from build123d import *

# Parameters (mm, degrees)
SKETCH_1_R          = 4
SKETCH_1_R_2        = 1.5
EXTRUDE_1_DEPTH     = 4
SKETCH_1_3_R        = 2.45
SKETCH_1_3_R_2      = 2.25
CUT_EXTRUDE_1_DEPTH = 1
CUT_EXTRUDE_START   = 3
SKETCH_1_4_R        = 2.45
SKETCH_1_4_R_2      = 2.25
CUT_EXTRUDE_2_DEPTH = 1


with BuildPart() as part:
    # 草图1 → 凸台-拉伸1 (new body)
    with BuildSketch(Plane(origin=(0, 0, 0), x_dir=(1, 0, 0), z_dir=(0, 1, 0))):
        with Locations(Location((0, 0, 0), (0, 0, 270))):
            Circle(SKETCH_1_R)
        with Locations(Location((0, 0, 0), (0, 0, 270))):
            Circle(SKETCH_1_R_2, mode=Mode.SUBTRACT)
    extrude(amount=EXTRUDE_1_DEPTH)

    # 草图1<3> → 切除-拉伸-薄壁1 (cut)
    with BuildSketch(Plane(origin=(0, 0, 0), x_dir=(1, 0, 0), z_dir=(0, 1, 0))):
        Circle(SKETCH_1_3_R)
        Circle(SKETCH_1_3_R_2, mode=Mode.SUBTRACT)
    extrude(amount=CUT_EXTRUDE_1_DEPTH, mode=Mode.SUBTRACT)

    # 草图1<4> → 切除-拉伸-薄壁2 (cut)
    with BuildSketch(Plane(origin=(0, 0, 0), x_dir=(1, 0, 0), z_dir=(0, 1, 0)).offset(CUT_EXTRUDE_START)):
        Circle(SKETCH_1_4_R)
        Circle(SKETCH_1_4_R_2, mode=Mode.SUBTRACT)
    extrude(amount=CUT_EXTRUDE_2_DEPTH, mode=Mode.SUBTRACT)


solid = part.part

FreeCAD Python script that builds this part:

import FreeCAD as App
import Part
import Sketcher
from FreeCAD import Vector
Q = App.Units.Quantity

doc = App.newDocument("Part")
body = doc.addObject("PartDesign::Body", "Body")

sketch1 = body.newObject("Sketcher::SketchObject", "Sketch")
sketch1.AttachmentSupport = (doc.getObject("XZ_Plane"), [""])
sketch1.MapMode = "FlatFace"
sketch1.addGeometry([
    Part.Circle(Vector(0, 0, 0), Vector(0, 0, 1), 4),
    Part.Circle(Vector(0, 0, 0), Vector(0, 0, 1), 1.5),
], False)
sketch1.addConstraint([
    Sketcher.Constraint("Coincident", 0, 3, -1, 1),
    Sketcher.Constraint("Coincident", 1, 3, -1, 1),
    Sketcher.Constraint("Diameter", 0, Q("8 mm")),
    Sketcher.Constraint("Diameter", 1, Q("3 mm")),
])
pad1 = body.newObject("PartDesign::Pad", "Pad")
pad1.Profile = sketch1
pad1.Length = 4
pad1.Reversed = True

sketch2 = body.newObject("Sketcher::SketchObject", "Sketch001")
sketch2.AttachmentSupport = (doc.getObject("XZ_Plane"), [""])
sketch2.MapMode = "FlatFace"
sketch2.addGeometry([
    Part.Circle(Vector(0, 0, 0), Vector(0, 0, 1), 2.5),
    Part.Circle(Vector(0, 0, 0), Vector(0, 0, 1), 2.2),
], False)
sketch2.addConstraint([
    Sketcher.Constraint("Coincident", 0, 3, -1, 1),
    Sketcher.Constraint("Coincident", 1, 3, -1, 1),
    Sketcher.Constraint("Diameter", 0, Q("4.9 mm")),
    Sketcher.Constraint("Diameter", 1, Q("4.5 mm")),
])
pocket1 = body.newObject("PartDesign::Pocket", "Pocket")
pocket1.Profile = sketch2
pocket1.Length = 1

sketch3 = body.newObject("Sketcher::SketchObject", "Sketch002")
sketch3.AttachmentSupport = (doc.getObject("XZ_Plane"), [""])
sketch3.MapMode = "FlatFace"
sketch3.AttachmentOffset = App.Placement(Vector(0, 0, -3), App.Rotation())
sketch3.addGeometry([
    Part.Circle(Vector(0, 0, 0), Vector(0, 0, 1), 2.5),
    Part.Circle(Vector(0, 0, 0), Vector(0, 0, 1), 2.2),
], False)
sketch3.addConstraint([
    Sketcher.Constraint("Coincident", 0, 3, -1, 1),
    Sketcher.Constraint("Coincident", 1, 3, -1, 1),
    Sketcher.Constraint("Diameter", 0, Q("4.9 mm")),
    Sketcher.Constraint("Diameter", 1, Q("4.5 mm")),
])
pocket2 = body.newObject("PartDesign::Pocket", "Pocket001")
pocket2.Profile = sketch3
pocket2.Length = 1

doc.recompute()
